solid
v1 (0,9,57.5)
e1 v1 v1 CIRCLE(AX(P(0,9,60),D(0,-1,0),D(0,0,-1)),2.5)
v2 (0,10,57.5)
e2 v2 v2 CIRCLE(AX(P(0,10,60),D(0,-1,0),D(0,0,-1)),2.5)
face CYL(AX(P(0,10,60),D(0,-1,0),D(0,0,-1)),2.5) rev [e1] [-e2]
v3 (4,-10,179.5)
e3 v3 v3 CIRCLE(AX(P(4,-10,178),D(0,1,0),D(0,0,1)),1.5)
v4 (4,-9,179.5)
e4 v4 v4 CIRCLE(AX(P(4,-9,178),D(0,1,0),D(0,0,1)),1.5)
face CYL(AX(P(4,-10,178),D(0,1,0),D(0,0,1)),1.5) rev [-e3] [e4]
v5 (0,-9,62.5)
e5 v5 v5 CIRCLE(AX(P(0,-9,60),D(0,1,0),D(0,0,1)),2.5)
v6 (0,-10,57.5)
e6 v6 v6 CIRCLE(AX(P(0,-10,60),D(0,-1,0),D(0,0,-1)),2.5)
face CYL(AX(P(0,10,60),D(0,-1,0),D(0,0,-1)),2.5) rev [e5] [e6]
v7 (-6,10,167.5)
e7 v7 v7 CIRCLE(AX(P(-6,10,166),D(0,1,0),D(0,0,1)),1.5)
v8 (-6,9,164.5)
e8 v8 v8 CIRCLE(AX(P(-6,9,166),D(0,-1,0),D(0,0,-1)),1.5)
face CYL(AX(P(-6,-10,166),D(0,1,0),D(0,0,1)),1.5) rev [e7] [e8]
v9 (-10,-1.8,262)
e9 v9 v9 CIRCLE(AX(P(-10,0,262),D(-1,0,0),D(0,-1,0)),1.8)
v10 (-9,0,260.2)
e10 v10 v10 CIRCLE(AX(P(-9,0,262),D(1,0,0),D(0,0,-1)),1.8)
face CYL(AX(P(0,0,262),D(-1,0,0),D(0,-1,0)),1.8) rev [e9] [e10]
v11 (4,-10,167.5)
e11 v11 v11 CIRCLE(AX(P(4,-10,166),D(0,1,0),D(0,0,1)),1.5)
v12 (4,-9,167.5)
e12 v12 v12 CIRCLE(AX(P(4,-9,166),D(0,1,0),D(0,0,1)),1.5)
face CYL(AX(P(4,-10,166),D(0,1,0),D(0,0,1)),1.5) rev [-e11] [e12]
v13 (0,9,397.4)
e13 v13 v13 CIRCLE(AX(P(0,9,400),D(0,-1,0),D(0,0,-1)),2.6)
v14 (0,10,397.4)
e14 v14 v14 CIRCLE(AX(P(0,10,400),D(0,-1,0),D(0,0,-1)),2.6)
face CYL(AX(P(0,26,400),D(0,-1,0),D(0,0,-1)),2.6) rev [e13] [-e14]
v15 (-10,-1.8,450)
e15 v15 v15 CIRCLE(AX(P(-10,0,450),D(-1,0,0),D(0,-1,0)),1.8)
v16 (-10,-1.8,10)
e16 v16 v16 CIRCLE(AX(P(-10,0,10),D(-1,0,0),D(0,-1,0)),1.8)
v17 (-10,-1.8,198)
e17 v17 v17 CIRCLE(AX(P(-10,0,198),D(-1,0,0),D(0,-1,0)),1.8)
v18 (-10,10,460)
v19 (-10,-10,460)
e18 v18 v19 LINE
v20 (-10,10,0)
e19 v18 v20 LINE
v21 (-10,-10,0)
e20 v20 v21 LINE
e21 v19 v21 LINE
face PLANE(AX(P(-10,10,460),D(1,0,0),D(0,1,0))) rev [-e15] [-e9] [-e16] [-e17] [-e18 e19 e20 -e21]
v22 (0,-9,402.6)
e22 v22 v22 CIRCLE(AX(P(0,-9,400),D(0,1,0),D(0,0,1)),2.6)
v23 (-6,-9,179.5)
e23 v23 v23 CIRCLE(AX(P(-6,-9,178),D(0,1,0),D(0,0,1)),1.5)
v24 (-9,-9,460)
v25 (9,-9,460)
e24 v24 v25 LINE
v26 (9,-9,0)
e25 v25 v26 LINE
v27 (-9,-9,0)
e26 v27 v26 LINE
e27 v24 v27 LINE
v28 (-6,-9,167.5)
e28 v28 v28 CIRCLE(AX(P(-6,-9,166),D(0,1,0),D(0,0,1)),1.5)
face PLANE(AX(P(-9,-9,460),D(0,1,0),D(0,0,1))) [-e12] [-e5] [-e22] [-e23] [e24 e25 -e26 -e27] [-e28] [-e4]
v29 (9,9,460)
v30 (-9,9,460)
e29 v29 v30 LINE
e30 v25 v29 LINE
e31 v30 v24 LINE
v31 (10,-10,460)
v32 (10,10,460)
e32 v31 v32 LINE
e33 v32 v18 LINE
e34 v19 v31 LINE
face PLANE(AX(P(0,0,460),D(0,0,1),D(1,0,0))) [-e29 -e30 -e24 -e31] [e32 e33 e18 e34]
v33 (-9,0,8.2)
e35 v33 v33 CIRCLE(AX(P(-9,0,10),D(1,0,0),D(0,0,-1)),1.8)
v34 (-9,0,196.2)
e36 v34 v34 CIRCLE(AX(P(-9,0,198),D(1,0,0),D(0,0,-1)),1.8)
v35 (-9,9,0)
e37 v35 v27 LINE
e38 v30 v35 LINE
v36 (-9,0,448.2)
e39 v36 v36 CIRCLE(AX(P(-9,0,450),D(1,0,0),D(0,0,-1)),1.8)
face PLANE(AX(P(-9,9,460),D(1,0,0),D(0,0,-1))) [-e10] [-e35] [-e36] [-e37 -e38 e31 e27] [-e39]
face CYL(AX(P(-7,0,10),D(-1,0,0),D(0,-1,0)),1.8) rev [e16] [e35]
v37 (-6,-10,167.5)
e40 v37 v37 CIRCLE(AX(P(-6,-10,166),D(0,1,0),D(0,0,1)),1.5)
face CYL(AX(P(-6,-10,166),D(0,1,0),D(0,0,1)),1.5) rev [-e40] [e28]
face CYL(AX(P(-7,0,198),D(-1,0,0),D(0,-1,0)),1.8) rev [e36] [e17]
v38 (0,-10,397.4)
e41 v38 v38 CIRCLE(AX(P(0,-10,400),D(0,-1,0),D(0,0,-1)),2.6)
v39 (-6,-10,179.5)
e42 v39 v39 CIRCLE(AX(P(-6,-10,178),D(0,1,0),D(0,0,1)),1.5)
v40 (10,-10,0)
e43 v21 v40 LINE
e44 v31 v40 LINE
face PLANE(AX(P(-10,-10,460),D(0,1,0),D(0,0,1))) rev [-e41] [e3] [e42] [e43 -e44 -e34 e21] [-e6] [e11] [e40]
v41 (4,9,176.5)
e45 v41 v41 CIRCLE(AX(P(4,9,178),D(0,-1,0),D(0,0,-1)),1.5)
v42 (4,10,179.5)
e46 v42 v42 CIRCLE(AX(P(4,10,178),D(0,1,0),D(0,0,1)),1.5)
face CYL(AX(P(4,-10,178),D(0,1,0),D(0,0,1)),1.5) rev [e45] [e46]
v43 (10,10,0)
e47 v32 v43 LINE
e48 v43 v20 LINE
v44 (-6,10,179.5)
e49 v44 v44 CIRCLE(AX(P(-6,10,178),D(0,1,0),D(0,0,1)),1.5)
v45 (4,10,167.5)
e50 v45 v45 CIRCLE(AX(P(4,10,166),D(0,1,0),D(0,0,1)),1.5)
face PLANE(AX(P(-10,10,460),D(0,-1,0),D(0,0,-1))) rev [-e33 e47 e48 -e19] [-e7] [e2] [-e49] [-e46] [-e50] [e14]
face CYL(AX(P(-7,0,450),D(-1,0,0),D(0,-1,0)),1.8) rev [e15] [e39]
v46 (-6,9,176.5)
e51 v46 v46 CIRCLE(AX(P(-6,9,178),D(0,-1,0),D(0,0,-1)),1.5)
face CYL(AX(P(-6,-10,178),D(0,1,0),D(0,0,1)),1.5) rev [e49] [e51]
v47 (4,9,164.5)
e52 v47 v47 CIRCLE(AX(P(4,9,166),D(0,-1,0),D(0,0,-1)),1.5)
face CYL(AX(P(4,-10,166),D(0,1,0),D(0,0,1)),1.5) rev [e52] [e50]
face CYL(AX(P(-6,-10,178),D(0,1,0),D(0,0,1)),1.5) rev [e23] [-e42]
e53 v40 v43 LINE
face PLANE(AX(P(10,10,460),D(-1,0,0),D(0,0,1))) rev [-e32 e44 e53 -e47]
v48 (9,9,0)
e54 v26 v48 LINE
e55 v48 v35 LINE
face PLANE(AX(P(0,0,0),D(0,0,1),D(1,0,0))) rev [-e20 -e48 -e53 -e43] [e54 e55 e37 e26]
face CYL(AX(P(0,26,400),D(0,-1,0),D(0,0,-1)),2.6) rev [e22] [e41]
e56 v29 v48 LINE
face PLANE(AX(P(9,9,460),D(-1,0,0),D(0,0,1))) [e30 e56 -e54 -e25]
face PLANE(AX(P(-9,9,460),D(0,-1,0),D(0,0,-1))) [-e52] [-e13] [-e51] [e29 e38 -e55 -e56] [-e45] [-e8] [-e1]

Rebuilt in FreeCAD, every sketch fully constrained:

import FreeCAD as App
import Part
import Sketcher
Q = App.Units.Quantity


def add_polygon(sketch, points):
    """Adds a closed chain of lines whose ends are joined by coincident constraints."""
    first, n = sketch.GeometryCount, len(points)
    for a, b in zip(points, points[1:] + points[:1]):
        sketch.addGeometry(Part.LineSegment(App.Vector(*a, 0), App.Vector(*b, 0)), False)
    for i in range(n):
        sketch.addConstraint(Sketcher.Constraint("Coincident", first + i, 2, first + (i + 1) % n, 1))

doc = App.newDocument("Part")
body = doc.addObject("PartDesign::Body", "Body")

# Sketch on XY plane
sketch1 = body.newObject("Sketcher::SketchObject", "Sketch")
sketch1.AttachmentSupport = (doc.getObject("XY_Plane"), [""])
sketch1.MapMode = "FlatFace"
add_polygon(sketch1, [(-10, 10), (-10, -10), (10, -10), (10, 10)])  # lines 0-3
add_polygon(sketch1, [(9, -9), (-9, -9), (-9, 9), (9, 9)])  # lines 4-7
sketch1.addConstraint(Sketcher.Constraint("Vertical", 0))
sketch1.addConstraint(Sketcher.Constraint("Horizontal", 1))
sketch1.addConstraint(Sketcher.Constraint("Vertical", 2))
sketch1.addConstraint(Sketcher.Constraint("Horizontal", 3))
sketch1.addConstraint(Sketcher.Constraint("Horizontal", 4))
sketch1.addConstraint(Sketcher.Constraint("Vertical", 5))
sketch1.addConstraint(Sketcher.Constraint("Horizontal", 6))
sketch1.addConstraint(Sketcher.Constraint("Vertical", 7))
sketch1.addConstraint(Sketcher.Constraint("Symmetric", 0, 2, 2, 2, -1, 1))
sketch1.addConstraint(Sketcher.Constraint("Symmetric", 4, 2, 6, 2, -1, 1))
sketch1.addConstraint(Sketcher.Constraint("Equal", 3, 0))
sketch1.addConstraint(Sketcher.Constraint("Equal", 6, 5))
sketch1.addConstraint(Sketcher.Constraint("DistanceX", 1, 1, 1, 2, Q("20 mm")))
sketch1.addConstraint(Sketcher.Constraint("DistanceX", 4, 2, 4, 1, Q("18 mm")))
pad1 = body.newObject("PartDesign::Pad", "Pad")
pad1.Profile = sketch1
pad1.Length = 460

# Sketch on YZ plane
sketch2 = body.newObject("Sketcher::SketchObject", "Sketch001")
sketch2.AttachmentSupport = (doc.getObject("YZ_Plane"), [""])
sketch2.MapMode = "FlatFace"
sketch2.AttachmentOffset = App.Placement(App.Vector(0, 0, -10), App.Rotation())
sketch2.addGeometry(Part.Circle(App.Vector(0, 10, 0), App.Vector(0, 0, 1), 1.8), False)
sketch2.addConstraint(Sketcher.Constraint("PointOnObject", 0, 3, -2))
sketch2.addConstraint(Sketcher.Constraint("Diameter", 0, Q("3.6 mm")))
sketch2.addConstraint(Sketcher.Constraint("DistanceY", -1, 1, 0, 3, Q("10 mm")))
pocket1 = body.newObject("PartDesign::Pocket", "Pocket")
pocket1.Profile = sketch2
pocket1.Length = 3
pocket1.Reversed = True

# Sketch on YZ plane
sketch3 = body.newObject("Sketcher::SketchObject", "Sketch002")
sketch3.AttachmentSupport = (doc.getObject("YZ_Plane"), [""])
sketch3.MapMode = "FlatFace"
sketch3.AttachmentOffset = App.Placement(App.Vector(0, 0, -10), App.Rotation())
sketch3.addGeometry(Part.Circle(App.Vector(0, 198, 0), App.Vector(0, 0, 1), 1.8), False)
sketch3.addConstraint(Sketcher.Constraint("PointOnObject", 0, 3, -2))
sketch3.addConstraint(Sketcher.Constraint("Diameter", 0, Q("3.6 mm")))
sketch3.addConstraint(Sketcher.Constraint("DistanceY", -1, 1, 0, 3, Q("198 mm")))
pocket2 = body.newObject("PartDesign::Pocket", "Pocket001")
pocket2.Profile = sketch3
pocket2.Length = 3
pocket2.Reversed = True

# Sketch on YZ plane
sketch4 = body.newObject("Sketcher::SketchObject", "Sketch003")
sketch4.AttachmentSupport = (doc.getObject("YZ_Plane"), [""])
sketch4.MapMode = "FlatFace"
sketch4.AttachmentOffset = App.Placement(App.Vector(0, 0, -10), App.Rotation())
sketch4.addGeometry(Part.Circle(App.Vector(0, 450, 0), App.Vector(0, 0, 1), 1.8), False)
sketch4.addConstraint(Sketcher.Constraint("PointOnObject", 0, 3, -2))
sketch4.addConstraint(Sketcher.Constraint("Diameter", 0, Q("3.6 mm")))
sketch4.addConstraint(Sketcher.Constraint("DistanceY", -1, 1, 0, 3, Q("450 mm")))
pocket3 = body.newObject("PartDesign::Pocket", "Pocket002")
pocket3.Profile = sketch4
pocket3.Length = 3
pocket3.Reversed = True

# Sketch on YZ plane
sketch5 = body.newObject("Sketcher::SketchObject", "Sketch004")
sketch5.AttachmentSupport = (doc.getObject("YZ_Plane"), [""])
sketch5.MapMode = "FlatFace"
sketch5.AttachmentOffset = App.Placement(App.Vector(0, 0, -10), App.Rotation())
sketch5.addGeometry(Part.Circle(App.Vector(0, 262, 0), App.Vector(0, 0, 1), 1.8), False)
sketch5.addConstraint(Sketcher.Constraint("PointOnObject", 0, 3, -2))
sketch5.addConstraint(Sketcher.Constraint("Diameter", 0, Q("3.6 mm")))
sketch5.addConstraint(Sketcher.Constraint("DistanceY", -1, 1, 0, 3, Q("262 mm")))
pocket4 = body.newObject("PartDesign::Pocket", "Pocket003")
pocket4.Profile = sketch5
pocket4.Length = 10
pocket4.Reversed = True

# Sketch on XZ plane
sketch6 = body.newObject("Sketcher::SketchObject", "Sketch005")
sketch6.AttachmentSupport = (doc.getObject("XZ_Plane"), [""])
sketch6.MapMode = "FlatFace"
sketch6.AttachmentOffset = App.Placement(App.Vector(0, 0, -10), App.Rotation())
sketch6.addGeometry(Part.Circle(App.Vector(4, 166, 0), App.Vector(0, 0, 1), 1.5), False)
sketch6.addGeometry(Part.Circle(App.Vector(-6, 166, 0), App.Vector(0, 0, 1), 1.5), False)
sketch6.addGeometry(Part.Circle(App.Vector(4, 178, 0), App.Vector(0, 0, 1), 1.5), False)
sketch6.addGeometry(Part.Circle(App.Vector(-6, 178, 0), App.Vector(0, 0, 1), 1.5), False)
sketch6.addConstraint(Sketcher.Constraint("Equal", 0, 1))
sketch6.addConstraint(Sketcher.Constraint("Equal", 1, 2))
sketch6.addConstraint(Sketcher.Constraint("Equal", 2, 3))
sketch6.addConstraint(Sketcher.Constraint("Horizontal", 0, 3, 1, 3))
sketch6.addConstraint(Sketcher.Constraint("Horizontal", 2, 3, 3, 3))
sketch6.addConstraint(Sketcher.Constraint("Vertical", 0, 3, 2, 3))
sketch6.addConstraint(Sketcher.Constraint("Vertical", 1, 3, 3, 3))
sketch6.addConstraint(Sketcher.Constraint("Diameter", 0, Q("3 mm")))
sketch6.addConstraint(Sketcher.Constraint("DistanceX", -1, 1, 0, 3, Q("4 mm")))
sketch6.addConstraint(Sketcher.Constraint("DistanceY", -1, 1, 0, 3, Q("166 mm")))
sketch6.addConstraint(Sketcher.Constraint("DistanceX", 1, 3, -1, 1, Q("6 mm")))
sketch6.addConstraint(Sketcher.Constraint("DistanceY", -1, 1, 2, 3, Q("178 mm")))
pocket5 = body.newObject("PartDesign::Pocket", "Pocket004")
pocket5.Profile = sketch6
pocket5.Length = 20
pocket5.Reversed = True

# Sketch on XZ plane
sketch7 = body.newObject("Sketcher::SketchObject", "Sketch006")
sketch7.AttachmentSupport = (doc.getObject("XZ_Plane"), [""])
sketch7.MapMode = "FlatFace"
sketch7.AttachmentOffset = App.Placement(App.Vector(0, 0, 10), App.Rotation())
sketch7.addGeometry(Part.Circle(App.Vector(0, 60, 0), App.Vector(0, 0, 1), 2.5), False)
sketch7.addConstraint(Sketcher.Constraint("PointOnObject", 0, 3, -2))
sketch7.addConstraint(Sketcher.Constraint("Diameter", 0, Q("5 mm")))
sketch7.addConstraint(Sketcher.Constraint("DistanceY", -1, 1, 0, 3, Q("60 mm")))
pocket6 = body.newObject("PartDesign::Pocket", "Pocket005")
pocket6.Profile = sketch7
pocket6.Length = 20

# Sketch on XZ plane
sketch8 = body.newObject("Sketcher::SketchObject", "Sketch007")
sketch8.AttachmentSupport = (doc.getObject("XZ_Plane"), [""])
sketch8.MapMode = "FlatFace"
sketch8.AttachmentOffset = App.Placement(App.Vector(0, 0, 10), App.Rotation())
sketch8.addGeometry(Part.Circle(App.Vector(0, 400, 0), App.Vector(0, 0, 1), 2.6), False)
sketch8.addConstraint(Sketcher.Constraint("PointOnObject", 0, 3, -2))
sketch8.addConstraint(Sketcher.Constraint("Diameter", 0, Q("5.2 mm")))
sketch8.addConstraint(Sketcher.Constraint("DistanceY", -1, 1, 0, 3, Q("400 mm")))
pocket7 = body.newObject("PartDesign::Pocket", "Pocket006")
pocket7.Profile = sketch8
pocket7.Length = 36

doc.recompute()
